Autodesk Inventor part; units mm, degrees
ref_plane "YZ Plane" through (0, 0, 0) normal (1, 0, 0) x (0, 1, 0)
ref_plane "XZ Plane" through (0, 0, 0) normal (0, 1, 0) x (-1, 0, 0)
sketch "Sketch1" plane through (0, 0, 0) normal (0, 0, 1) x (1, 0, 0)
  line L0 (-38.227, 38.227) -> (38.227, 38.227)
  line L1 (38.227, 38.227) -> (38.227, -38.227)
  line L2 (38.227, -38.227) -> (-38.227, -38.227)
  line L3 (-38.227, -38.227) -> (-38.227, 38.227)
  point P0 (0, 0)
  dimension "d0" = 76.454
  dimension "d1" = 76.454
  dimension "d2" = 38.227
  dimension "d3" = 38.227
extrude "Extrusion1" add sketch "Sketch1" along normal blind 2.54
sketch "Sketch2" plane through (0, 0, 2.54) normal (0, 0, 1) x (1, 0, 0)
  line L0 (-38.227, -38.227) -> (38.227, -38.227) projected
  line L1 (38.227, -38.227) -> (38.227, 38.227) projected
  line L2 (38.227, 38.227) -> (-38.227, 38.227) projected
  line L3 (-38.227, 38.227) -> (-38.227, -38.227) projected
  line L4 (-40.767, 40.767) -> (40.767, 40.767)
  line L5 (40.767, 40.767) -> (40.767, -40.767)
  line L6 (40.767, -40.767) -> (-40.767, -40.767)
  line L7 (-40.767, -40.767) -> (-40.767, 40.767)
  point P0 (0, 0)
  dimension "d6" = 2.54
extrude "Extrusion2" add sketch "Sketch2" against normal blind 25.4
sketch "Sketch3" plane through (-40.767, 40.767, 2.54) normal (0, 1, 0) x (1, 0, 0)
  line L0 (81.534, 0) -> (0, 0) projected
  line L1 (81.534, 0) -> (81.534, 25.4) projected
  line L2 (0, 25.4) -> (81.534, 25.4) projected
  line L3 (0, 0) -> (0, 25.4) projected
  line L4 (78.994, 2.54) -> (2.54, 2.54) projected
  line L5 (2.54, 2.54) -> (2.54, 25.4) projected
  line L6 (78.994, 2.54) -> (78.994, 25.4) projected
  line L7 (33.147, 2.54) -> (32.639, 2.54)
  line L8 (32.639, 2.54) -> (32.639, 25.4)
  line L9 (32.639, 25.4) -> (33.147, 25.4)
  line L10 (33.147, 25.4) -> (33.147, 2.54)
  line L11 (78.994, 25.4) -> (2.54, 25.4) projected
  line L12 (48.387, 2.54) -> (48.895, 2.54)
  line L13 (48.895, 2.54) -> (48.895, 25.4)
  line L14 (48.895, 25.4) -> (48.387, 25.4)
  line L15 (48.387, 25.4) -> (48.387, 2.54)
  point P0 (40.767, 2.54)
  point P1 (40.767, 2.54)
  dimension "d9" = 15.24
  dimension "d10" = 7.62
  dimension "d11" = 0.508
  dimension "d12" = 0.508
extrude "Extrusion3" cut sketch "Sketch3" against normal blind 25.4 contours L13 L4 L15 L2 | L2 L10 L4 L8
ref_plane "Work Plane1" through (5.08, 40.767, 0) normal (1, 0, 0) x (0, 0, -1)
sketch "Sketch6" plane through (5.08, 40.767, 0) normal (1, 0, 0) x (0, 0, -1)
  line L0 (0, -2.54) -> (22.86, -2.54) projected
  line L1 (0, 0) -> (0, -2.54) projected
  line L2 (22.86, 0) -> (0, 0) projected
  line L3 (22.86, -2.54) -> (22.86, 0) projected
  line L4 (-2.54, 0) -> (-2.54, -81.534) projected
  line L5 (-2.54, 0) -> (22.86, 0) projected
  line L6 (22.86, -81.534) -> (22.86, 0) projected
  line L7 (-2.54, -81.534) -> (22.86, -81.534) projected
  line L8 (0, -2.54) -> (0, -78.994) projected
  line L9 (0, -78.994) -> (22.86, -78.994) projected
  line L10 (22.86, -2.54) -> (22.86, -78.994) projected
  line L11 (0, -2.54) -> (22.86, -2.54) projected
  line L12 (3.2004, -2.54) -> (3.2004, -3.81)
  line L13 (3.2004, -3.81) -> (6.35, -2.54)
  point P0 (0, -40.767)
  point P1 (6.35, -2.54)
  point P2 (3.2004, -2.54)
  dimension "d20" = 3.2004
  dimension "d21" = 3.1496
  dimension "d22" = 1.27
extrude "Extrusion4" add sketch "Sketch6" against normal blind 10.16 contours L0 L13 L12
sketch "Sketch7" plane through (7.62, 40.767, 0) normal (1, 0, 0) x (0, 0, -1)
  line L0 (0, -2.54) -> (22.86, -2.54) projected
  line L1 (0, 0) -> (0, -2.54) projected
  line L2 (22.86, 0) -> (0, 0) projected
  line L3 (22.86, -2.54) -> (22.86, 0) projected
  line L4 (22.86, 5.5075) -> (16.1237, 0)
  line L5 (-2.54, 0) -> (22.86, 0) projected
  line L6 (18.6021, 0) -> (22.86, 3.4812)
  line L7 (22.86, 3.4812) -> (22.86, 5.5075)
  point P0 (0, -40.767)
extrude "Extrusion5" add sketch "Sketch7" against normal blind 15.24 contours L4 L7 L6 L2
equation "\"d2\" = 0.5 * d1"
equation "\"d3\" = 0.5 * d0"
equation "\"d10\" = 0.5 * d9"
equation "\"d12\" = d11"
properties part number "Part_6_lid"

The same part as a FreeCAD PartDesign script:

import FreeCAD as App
import Part
import Sketcher
Q = App.Units.Quantity


def add_polygon(sketch, points):
    """Adds a closed chain of lines whose ends are joined by coincident constraints."""
    first, n = sketch.GeometryCount, len(points)
    for a, b in zip(points, points[1:] + points[:1]):
        sketch.addGeometry(Part.LineSegment(App.Vector(*a, 0), App.Vector(*b, 0)), False)
    for i in range(n):
        sketch.addConstraint(Sketcher.Constraint("Coincident", first + i, 2, first + (i + 1) % n, 1))

doc = App.newDocument("Part")
body = doc.addObject("PartDesign::Body", "Body")

sketch1 = doc.addObject("Sketcher::SketchObject", "Sketch")
body.addObject(sketch1)
sketch1.AttachmentSupport = (doc.XY_Plane, [""])
sketch1.MapMode = "FlatFace"
add_polygon(sketch1, [(38, 38), (-38, 38), (-38, -38), (38, -38)])
sketch1.addConstraint([
    Sketcher.Constraint("Horizontal", 0),
    Sketcher.Constraint("Vertical", 1),
    Sketcher.Constraint("Horizontal", 2),
    Sketcher.Constraint("Vertical", 3),
    Sketcher.Constraint("Symmetric", 0, 2, 2, 2, -1, 1),
    Sketcher.Constraint("Equal", 2, 1),
    Sketcher.Constraint("DistanceX", 0, 2, 0, 1, Q("3.01 in")),
])
pad1 = doc.addObject("PartDesign::Pad", "Pad")
body.addObject(pad1)
pad1.Profile = sketch1
pad1.Length = Q("0.1 in")

sketch2 = doc.addObject("Sketcher::SketchObject", "Sketch001")
body.addObject(sketch2)
sketch2.AttachmentSupport = (doc.XY_Plane, [""])
sketch2.MapMode = "FlatFace"
sketch2.AttachmentOffset = App.Placement(App.Vector(0, 0, 0.1 * 25.4), App.Rotation())
add_polygon(sketch2, [(41, 41), (-41, 41), (-41, -41), (41, -41)])
add_polygon(sketch2, [(38, -38), (-38, -38), (-38, 38), (38, 38)])
sketch2.addConstraint([
    Sketcher.Constraint("Horizontal", 0),
    Sketcher.Constraint("Vertical", 1),
    Sketcher.Constraint("Horizontal", 2),
    Sketcher.Constraint("Vertical", 3),
    Sketcher.Constraint("Horizontal", 4),
    Sketcher.Constraint("Vertical", 5),
    Sketcher.Constraint("Horizontal", 6),
    Sketcher.Constraint("Vertical", 7),
    Sketcher.Constraint("Symmetric", 0, 2, 2, 2, -1, 1),
    Sketcher.Constraint("Symmetric", 4, 2, 6, 2, -1, 1),
    Sketcher.Constraint("Equal", 2, 1),
    Sketcher.Constraint("Equal", 6, 5),
    Sketcher.Constraint("DistanceX", 1, 2, 4, 2, Q("0.1 in")),
    Sketcher.Constraint("DistanceX", 0, 2, 0, 1, Q("3.21 in")),
])
pad2 = doc.addObject("PartDesign::Pad", "Pad001")
body.addObject(pad2)
pad2.Profile = sketch2
pad2.Length = Q("1 in")
pad2.Reversed = True

sketch3 = doc.addObject("Sketcher::SketchObject", "Sketch002")
body.addObject(sketch3)
sketch3.AttachmentSupport = (doc.XZ_Plane, [""])
sketch3.MapMode = "FlatFace"
sketch3.AttachmentOffset = App.Placement(App.Vector(0, 0, -1.605 * 25.4), App.Rotation())
add_polygon(sketch3, [(8.1, 0), (8.1, -22.9), (7.6, -22.9), (7.6, 0)])
add_polygon(sketch3, [(-7.6, -22.9), (-8.1, -22.9), (-8.1, 0), (-7.6, 0)])
sketch3.addConstraint([
    Sketcher.Constraint("Vertical", 0),
    Sketcher.Constraint("Horizontal", 1),
    Sketcher.Constraint("Vertical", 2),
    Sketcher.Constraint("Horizontal", 3),
    Sketcher.Constraint("Horizontal", 4),
    Sketcher.Constraint("Vertical", 5),
    Sketcher.Constraint("Horizontal", 6),
    Sketcher.Constraint("Vertical", 7),
    Sketcher.Constraint("Symmetric", 3, 2, 5, 2, -1, 1),
    Sketcher.Constraint("Symmetric", 2, 2, 6, 2, -2),
    Sketcher.Constraint("Horizontal", 1, 2, 4, 2),
    Sketcher.Constraint("DistanceX", 1, 2, 1, 1, Q("0.02 in")),
    Sketcher.Constraint("DistanceX", -1, 1, 1, 2, Q("0.3 in")),
    Sketcher.Constraint("DistanceY", 0, 2, 0, 1, Q("0.9 in")),
])
pocket1 = doc.addObject("PartDesign::Pocket", "Pocket")
body.addObject(pocket1)
pocket1.Profile = sketch3
pocket1.Length = Q("1 in")
pocket1.Reversed = True

sketch4 = doc.addObject("Sketcher::SketchObject", "Sketch003")
body.addObject(sketch4)
sketch4.AttachmentSupport = (doc.YZ_Plane, [""])
sketch4.MapMode = "FlatFace"
sketch4.AttachmentOffset = App.Placement(App.Vector(0, 0, 0.2 * 25.4), App.Rotation())
add_polygon(sketch4, [(38.2, -6.3), (38.2, -3.2), (37, -3.2)])
sketch4.addConstraint([
    Sketcher.Constraint("Vertical", 0),
    Sketcher.Constraint("Horizontal", 1),
    Sketcher.Constraint("DistanceX", 1, 2, 1, 1, Q("0.05 in")),
    Sketcher.Constraint("DistanceY", 0, 1, 0, 2, Q("0.124 in")),
    Sketcher.Constraint("DistanceY", 0, 2, -1, 1, Q("0.126 in")),
    Sketcher.Constraint("DistanceX", -1, 1, 0, 2, Q("1.505 in")),
])
pad3 = doc.addObject("PartDesign::Pad", "Pad002")
body.addObject(pad3)
pad3.Profile = sketch4
pad3.Length = Q("0.4 in")
pad3.Reversed = True

sketch5 = doc.addObject("Sketcher::SketchObject", "Sketch004")
body.addObject(sketch5)
sketch5.AttachmentSupport = (doc.YZ_Plane, [""])
sketch5.MapMode = "FlatFace"
sketch5.AttachmentOffset = App.Placement(App.Vector(0, 0, 0.3 * 25.4), App.Rotation())
add_polygon(sketch5, [(46.3, -22.9), (40.8, -16.1), (40.8, -18.6), (44.2, -22.9)])
sketch5.addConstraint([
    Sketcher.Constraint("Vertical", 1),
    Sketcher.Constraint("Horizontal", 3),
    Sketcher.Constraint("Parallel", 0, 2),
    Sketcher.Constraint("DistanceY", 2, 2, -1, 1, Q("0.9 in")),
    Sketcher.Constraint("Angle", 0, Q("129.269 deg")),
    Sketcher.Constraint("DistanceX", -1, 1, 0, 2, Q("1.605 in")),
    Sketcher.Constraint("DistanceX", 3, 1, 3, 2, 2.0263),
    Sketcher.Constraint("DistanceY", 0, 2, -1, 1, Q("0.6348 in")),
])
pad4 = doc.addObject("PartDesign::Pad", "Pad003")
body.addObject(pad4)
pad4.Profile = sketch5
pad4.Length = Q("0.6 in")
pad4.Reversed = True

doc.recompute()
